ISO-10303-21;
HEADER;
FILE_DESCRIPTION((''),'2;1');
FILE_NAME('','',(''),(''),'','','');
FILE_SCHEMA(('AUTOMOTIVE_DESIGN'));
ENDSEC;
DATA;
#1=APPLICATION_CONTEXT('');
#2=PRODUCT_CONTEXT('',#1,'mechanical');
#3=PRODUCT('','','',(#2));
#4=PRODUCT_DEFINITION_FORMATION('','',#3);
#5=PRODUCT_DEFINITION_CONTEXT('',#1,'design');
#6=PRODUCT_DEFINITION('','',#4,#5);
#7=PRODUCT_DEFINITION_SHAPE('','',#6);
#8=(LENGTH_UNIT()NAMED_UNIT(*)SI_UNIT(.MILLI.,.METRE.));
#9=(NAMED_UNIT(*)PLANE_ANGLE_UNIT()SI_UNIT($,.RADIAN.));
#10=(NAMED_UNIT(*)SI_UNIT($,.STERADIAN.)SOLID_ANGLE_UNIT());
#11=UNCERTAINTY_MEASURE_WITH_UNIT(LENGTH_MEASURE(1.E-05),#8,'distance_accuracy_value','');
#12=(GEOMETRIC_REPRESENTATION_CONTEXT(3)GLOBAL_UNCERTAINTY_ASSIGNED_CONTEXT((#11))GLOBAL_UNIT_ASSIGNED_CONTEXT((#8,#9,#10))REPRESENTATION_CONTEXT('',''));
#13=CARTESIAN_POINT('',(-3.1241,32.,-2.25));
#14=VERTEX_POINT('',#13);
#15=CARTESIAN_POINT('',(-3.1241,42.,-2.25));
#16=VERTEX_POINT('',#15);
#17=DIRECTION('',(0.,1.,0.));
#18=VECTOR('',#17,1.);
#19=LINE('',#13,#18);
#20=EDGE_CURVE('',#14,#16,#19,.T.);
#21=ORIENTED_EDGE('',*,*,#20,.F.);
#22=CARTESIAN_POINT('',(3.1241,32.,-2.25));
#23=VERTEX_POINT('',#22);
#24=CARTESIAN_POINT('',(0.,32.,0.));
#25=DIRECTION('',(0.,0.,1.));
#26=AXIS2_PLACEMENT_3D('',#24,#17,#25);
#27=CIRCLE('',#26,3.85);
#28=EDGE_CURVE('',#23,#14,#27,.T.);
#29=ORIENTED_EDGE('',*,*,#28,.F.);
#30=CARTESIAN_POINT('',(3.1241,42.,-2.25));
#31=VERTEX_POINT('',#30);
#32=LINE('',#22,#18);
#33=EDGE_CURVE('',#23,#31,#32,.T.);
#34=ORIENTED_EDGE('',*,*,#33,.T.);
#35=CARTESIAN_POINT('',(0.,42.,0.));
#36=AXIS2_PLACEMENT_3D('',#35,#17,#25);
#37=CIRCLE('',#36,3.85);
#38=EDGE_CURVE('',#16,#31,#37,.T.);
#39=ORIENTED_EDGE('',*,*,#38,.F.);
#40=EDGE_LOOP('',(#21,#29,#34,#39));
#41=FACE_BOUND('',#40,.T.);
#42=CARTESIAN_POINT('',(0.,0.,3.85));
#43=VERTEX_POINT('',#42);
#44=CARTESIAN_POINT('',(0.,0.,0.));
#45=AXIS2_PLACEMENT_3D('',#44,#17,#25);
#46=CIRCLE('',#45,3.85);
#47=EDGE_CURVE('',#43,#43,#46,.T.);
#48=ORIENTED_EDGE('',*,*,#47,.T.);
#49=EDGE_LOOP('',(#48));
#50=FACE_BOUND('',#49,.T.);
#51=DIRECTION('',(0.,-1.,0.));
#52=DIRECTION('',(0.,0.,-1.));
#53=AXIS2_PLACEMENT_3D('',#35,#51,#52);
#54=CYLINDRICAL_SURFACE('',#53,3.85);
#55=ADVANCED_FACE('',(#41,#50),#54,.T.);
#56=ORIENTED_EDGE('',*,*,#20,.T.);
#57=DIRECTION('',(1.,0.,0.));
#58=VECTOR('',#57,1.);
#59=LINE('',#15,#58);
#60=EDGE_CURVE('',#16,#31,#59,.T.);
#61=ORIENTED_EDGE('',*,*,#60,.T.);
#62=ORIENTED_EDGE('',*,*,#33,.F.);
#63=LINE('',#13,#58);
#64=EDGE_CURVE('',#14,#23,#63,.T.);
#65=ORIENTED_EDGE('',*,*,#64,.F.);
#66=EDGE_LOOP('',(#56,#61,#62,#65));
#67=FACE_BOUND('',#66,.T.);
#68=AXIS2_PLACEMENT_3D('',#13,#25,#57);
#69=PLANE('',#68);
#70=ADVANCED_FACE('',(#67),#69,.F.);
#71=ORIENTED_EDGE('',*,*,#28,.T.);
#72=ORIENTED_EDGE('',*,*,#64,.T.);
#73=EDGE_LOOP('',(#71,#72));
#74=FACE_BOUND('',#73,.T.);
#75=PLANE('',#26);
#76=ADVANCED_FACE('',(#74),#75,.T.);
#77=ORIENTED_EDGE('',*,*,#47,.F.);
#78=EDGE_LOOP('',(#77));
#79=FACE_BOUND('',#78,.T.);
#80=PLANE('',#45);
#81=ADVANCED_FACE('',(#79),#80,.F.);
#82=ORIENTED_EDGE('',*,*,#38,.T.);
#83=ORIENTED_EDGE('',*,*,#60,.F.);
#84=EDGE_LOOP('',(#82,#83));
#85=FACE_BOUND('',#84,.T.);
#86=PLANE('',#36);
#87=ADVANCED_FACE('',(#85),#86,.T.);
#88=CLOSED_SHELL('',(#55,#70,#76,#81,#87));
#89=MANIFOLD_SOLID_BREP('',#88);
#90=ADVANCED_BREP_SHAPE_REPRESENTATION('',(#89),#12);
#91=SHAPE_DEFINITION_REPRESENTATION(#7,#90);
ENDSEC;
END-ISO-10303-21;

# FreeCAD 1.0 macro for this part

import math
import FreeCAD as App
import Part
import Sketcher
from FreeCAD import Vector
Q = App.Units.Quantity

doc = App.newDocument("Part")
body = doc.addObject("PartDesign::Body", "Body")

sketch1 = body.newObject("Sketcher::SketchObject", "Sketch")
sketch1.AttachmentSupport = (doc.getObject("XZ_Plane"), [""])
sketch1.MapMode = "FlatFace"
sketch1.addGeometry(Part.Circle(Vector(0, 0, 0), Vector(0, 0, 1), 3.9), False)
sketch1.addConstraint(Sketcher.Constraint("Coincident", 0, 3, -1, 1))
sketch1.addConstraint(Sketcher.Constraint("Diameter", 0, Q("7.7 mm")))
pad1 = body.newObject("PartDesign::Pad", "Pad")
pad1.Profile = sketch1
pad1.Length = 42
pad1.Reversed = True

sketch2 = body.newObject("Sketcher::SketchObject", "Sketch001")
sketch2.AttachmentSupport = (doc.getObject("XZ_Plane"), [""])
sketch2.MapMode = "FlatFace"
sketch2.AttachmentOffset = App.Placement(Vector(0, 0, -32), App.Rotation())
sketch2.addGeometry(Part.LineSegment(Vector(-3.1, -2.2, 0), Vector(3.1, -2.2, 0)), False)
sketch2.addGeometry(Part.ArcOfCircle(Part.Circle(Vector(0, 0, 0), Vector(0, 0, 1), 3.8), math.radians(-144), math.radians(-36)), False)
sketch2.addConstraint(Sketcher.Constraint("Coincident", 0, 1, 1, 1))
sketch2.addConstraint(Sketcher.Constraint("Coincident", 1, 2, 0, 2))
sketch2.addConstraint(Sketcher.Constraint("Horizontal", 0))
sketch2.addConstraint(Sketcher.Constraint("Coincident", 1, 3, -1, 1))
sketch2.addConstraint(Sketcher.Constraint("Radius", 1, Q("3.85 mm")))
sketch2.addConstraint(Sketcher.Constraint("DistanceY", 0, 1, -1, 1, Q("2.25 mm")))
pocket1 = body.newObject("PartDesign::Pocket", "Pocket")
pocket1.Profile = sketch2
pocket1.Length = 10

doc.recompute()
